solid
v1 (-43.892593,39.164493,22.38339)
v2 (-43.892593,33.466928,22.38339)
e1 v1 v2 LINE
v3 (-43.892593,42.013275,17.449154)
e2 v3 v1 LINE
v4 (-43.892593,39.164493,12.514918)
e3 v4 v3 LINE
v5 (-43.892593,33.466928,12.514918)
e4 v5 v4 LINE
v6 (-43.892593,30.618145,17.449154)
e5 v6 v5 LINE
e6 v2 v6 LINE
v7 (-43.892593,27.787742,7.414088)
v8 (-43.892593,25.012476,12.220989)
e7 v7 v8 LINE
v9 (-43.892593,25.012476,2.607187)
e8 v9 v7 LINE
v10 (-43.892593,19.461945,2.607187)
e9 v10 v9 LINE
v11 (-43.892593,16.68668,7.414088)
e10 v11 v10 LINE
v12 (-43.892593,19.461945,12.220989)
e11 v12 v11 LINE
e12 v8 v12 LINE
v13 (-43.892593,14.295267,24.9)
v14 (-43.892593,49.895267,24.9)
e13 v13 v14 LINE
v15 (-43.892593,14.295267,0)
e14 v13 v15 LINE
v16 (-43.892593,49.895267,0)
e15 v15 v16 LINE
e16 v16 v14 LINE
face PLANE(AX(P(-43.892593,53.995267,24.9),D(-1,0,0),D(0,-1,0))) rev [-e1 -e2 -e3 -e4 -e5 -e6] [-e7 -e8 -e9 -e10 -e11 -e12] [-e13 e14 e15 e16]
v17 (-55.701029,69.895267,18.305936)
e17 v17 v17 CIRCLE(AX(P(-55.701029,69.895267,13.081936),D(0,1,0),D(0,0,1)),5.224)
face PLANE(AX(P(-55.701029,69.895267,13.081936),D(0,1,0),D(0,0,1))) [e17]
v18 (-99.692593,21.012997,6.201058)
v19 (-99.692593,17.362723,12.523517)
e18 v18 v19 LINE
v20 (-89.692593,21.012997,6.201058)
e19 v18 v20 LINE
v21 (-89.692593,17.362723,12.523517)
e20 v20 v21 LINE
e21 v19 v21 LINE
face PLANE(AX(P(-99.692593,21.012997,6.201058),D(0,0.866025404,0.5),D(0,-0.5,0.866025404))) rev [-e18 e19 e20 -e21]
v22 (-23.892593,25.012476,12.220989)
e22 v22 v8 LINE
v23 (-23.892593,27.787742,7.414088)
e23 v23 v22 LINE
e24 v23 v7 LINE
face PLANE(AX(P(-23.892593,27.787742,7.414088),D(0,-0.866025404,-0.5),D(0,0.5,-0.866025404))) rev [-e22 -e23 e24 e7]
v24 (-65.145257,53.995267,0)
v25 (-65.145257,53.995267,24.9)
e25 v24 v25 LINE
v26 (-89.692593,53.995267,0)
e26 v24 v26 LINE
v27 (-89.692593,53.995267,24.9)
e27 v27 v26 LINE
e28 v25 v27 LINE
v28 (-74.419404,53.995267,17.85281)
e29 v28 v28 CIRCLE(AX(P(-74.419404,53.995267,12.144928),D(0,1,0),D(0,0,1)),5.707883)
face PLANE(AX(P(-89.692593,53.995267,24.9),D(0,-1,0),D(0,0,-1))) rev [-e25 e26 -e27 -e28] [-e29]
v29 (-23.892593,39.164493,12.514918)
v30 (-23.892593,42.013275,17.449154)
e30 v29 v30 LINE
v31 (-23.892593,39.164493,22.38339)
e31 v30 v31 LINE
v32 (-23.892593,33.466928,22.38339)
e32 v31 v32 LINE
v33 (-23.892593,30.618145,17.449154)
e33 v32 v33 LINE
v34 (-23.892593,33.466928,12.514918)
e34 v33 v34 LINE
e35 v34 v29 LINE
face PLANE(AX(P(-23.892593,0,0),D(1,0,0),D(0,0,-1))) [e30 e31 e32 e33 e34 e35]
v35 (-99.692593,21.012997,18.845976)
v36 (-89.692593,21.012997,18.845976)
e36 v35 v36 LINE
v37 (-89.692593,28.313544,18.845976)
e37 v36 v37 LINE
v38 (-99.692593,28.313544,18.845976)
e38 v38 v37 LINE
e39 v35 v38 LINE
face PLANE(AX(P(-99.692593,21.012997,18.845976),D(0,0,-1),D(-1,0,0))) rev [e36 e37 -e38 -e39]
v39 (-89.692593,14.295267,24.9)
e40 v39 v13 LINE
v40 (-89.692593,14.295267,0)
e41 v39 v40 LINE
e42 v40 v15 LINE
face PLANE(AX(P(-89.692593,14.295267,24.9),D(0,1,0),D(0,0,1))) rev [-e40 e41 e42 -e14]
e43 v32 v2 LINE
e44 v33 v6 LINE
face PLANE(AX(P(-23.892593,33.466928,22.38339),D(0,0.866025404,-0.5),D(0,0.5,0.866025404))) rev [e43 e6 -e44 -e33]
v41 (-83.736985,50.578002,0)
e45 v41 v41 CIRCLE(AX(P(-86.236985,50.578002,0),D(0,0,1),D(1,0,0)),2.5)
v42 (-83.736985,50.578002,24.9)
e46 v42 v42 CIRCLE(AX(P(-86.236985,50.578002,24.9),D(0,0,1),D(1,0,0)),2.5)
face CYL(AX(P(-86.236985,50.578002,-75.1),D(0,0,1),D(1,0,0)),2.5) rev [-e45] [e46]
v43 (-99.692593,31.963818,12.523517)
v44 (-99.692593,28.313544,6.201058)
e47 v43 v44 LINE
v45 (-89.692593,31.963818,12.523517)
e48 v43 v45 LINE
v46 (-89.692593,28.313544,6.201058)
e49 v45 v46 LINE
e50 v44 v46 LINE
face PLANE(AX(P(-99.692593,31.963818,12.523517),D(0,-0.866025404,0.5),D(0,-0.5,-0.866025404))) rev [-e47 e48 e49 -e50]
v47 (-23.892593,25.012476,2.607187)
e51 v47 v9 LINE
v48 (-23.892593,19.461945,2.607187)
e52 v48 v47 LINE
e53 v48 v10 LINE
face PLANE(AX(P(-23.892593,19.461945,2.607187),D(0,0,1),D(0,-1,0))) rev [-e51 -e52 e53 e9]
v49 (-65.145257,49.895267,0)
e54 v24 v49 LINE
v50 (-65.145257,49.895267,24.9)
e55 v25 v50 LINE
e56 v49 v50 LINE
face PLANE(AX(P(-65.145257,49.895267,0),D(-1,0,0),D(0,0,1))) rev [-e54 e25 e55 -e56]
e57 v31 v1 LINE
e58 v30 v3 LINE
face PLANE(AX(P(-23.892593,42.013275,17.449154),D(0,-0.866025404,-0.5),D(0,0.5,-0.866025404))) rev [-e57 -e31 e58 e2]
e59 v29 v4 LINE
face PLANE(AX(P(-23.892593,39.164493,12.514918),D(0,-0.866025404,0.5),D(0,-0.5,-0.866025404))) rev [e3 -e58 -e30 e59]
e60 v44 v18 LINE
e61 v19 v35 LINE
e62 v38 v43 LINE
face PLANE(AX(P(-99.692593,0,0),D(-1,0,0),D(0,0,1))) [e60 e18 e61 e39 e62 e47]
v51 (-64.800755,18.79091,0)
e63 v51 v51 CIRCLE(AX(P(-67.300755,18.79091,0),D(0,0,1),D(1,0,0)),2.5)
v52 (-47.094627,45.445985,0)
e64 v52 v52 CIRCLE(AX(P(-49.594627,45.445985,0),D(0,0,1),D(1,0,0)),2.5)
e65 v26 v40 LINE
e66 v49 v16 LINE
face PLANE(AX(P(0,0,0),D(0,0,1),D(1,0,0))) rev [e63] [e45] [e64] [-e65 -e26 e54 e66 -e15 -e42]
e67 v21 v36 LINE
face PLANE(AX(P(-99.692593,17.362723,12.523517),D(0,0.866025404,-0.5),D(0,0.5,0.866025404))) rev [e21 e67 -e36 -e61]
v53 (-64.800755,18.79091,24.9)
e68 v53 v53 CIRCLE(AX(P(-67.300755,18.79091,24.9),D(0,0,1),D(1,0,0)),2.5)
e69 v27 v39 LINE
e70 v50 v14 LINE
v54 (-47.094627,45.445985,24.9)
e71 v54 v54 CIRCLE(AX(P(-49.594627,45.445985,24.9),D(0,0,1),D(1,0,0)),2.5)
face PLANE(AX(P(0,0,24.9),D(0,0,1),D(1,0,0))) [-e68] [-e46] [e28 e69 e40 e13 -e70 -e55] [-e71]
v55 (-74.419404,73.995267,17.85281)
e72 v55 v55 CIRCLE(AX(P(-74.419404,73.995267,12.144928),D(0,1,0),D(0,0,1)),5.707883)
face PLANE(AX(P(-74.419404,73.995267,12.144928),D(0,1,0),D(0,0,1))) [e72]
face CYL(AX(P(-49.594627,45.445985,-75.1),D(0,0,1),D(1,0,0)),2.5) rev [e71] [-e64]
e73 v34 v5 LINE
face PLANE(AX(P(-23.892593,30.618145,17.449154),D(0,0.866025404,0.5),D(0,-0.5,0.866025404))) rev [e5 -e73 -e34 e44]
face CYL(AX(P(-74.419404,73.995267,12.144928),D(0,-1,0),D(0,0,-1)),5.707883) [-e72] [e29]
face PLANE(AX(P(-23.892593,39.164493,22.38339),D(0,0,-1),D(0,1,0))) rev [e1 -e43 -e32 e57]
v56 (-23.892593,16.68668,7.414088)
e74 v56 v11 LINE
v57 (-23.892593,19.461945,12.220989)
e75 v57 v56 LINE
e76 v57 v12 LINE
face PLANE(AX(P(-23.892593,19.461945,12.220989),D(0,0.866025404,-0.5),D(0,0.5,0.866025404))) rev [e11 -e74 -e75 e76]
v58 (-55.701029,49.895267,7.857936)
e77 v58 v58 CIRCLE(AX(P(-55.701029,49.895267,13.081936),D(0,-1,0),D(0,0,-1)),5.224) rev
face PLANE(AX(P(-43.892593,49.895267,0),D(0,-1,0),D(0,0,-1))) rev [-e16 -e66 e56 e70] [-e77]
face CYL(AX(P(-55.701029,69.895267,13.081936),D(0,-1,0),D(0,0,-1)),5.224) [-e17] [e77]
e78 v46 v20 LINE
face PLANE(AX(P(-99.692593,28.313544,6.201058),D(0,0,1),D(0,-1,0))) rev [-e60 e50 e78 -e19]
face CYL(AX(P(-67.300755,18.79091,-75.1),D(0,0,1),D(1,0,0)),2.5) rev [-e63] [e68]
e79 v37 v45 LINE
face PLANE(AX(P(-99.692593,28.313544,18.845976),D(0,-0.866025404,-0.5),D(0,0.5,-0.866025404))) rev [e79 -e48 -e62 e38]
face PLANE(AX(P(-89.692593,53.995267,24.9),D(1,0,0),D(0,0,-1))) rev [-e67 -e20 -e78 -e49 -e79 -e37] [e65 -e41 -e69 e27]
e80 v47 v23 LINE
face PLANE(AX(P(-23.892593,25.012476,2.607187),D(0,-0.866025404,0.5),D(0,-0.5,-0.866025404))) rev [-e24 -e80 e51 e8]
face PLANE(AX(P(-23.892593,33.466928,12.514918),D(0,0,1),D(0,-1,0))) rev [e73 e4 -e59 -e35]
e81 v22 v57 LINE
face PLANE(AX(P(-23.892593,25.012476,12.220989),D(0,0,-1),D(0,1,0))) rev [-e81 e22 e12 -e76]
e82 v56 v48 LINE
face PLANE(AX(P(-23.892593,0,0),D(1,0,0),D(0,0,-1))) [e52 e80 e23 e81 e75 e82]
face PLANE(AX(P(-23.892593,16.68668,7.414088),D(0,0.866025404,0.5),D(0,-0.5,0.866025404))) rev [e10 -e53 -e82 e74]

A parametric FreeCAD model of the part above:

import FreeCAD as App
import Part
import Sketcher
Q = App.Units.Quantity

doc = App.newDocument("Part")
body = doc.addObject("PartDesign::Body", "Body")

# Sketch on XY plane
sketch1 = body.newObject("Sketcher::SketchObject", "Sketch")
sketch1.AttachmentSupport = (doc.getObject("XY_Plane"), [""])
sketch1.MapMode = "FlatFace"
sketch1.addGeometry(Part.LineSegment(App.Vector(-89.692593, 53.995267, 0), App.Vector(-89.692593, 14.295267, 0)), False)
sketch1.addGeometry(Part.LineSegment(App.Vector(-89.692593, 14.295267, 0), App.Vector(-43.892593, 14.295267, 0)), False)
sketch1.addGeometry(Part.LineSegment(App.Vector(-43.892593, 14.295267, 0), App.Vector(-43.892593, 53.995267, 0)), False)
sketch1.addGeometry(Part.LineSegment(App.Vector(-43.892593, 53.995267, 0), App.Vector(-89.692593, 53.995267, 0)), False)
sketch1.addConstraint(Sketcher.Constraint("Coincident", 0, 2, 1, 1))
sketch1.addConstraint(Sketcher.Constraint("Coincident", 1, 2, 2, 1))
sketch1.addConstraint(Sketcher.Constraint("Coincident", 2, 2, 3, 1))
sketch1.addConstraint(Sketcher.Constraint("Coincident", 3, 2, 0, 1))
sketch1.addConstraint(Sketcher.Constraint("Vertical", 0))
sketch1.addConstraint(Sketcher.Constraint("Horizontal", 1))
sketch1.addConstraint(Sketcher.Constraint("Vertical", 2))
sketch1.addConstraint(Sketcher.Constraint("Horizontal", 3))
sketch1.addConstraint(Sketcher.Constraint("DistanceX", 1, 1, 1, 2, Q("45.8 mm")))
sketch1.addConstraint(Sketcher.Constraint("DistanceY", 0, 2, 0, 1, Q("39.7 mm")))
sketch1.addConstraint(Sketcher.Constraint("DistanceX", 0, 2, -1, 1, Q("89.692593 mm")))
sketch1.addConstraint(Sketcher.Constraint("DistanceY", -1, 1, 0, 2, Q("14.295267 mm")))
pad1 = body.newObject("PartDesign::Pad", "Pad")
pad1.Profile = sketch1
pad1.Length = 24.9

# Sketch on XY plane
sketch2 = body.newObject("Sketcher::SketchObject", "Sketch001")
sketch2.AttachmentSupport = (doc.getObject("XY_Plane"), [""])
sketch2.MapMode = "FlatFace"
sketch2.AttachmentOffset = App.Placement(App.Vector(0, 0, 24.9), App.Rotation())
sketch2.addGeometry(Part.LineSegment(App.Vector(-65.145257, 53.995267, 0), App.Vector(-65.145257, 49.895267, 0)), False)
sketch2.addGeometry(Part.LineSegment(App.Vector(-65.145257, 49.895267, 0), App.Vector(-43.892593, 49.895267, 0)), False)
sketch2.addGeometry(Part.LineSegment(App.Vector(-43.892593, 49.895267, 0), App.Vector(-43.892593, 53.995267, 0)), False)
sketch2.addGeometry(Part.LineSegment(App.Vector(-43.892593, 53.995267, 0), App.Vector(-65.145257, 53.995267, 0)), False)
sketch2.addConstraint(Sketcher.Constraint("Coincident", 0, 2, 1, 1))
sketch2.addConstraint(Sketcher.Constraint("Coincident", 1, 2, 2, 1))
sketch2.addConstraint(Sketcher.Constraint("Coincident", 2, 2, 3, 1))
sketch2.addConstraint(Sketcher.Constraint("Coincident", 3, 2, 0, 1))
sketch2.addConstraint(Sketcher.Constraint("Vertical", 0))
sketch2.addConstraint(Sketcher.Constraint("Horizontal", 1))
sketch2.addConstraint(Sketcher.Constraint("Vertical", 2))
sketch2.addConstraint(Sketcher.Constraint("Horizontal", 3))
sketch2.addConstraint(Sketcher.Constraint("DistanceY", 0, 2, 0, 1, Q("4.1 mm")))
sketch2.addConstraint(Sketcher.Constraint("DistanceX", 1, 1, 1, 2, Q("21.252664 mm")))
sketch2.addConstraint(Sketcher.Constraint("DistanceX", 0, 2, -1, 1, Q("65.145257 mm")))
sketch2.addConstraint(Sketcher.Constraint("DistanceY", -1, 1, 0, 2, Q("49.895267 mm")))
pocket1 = body.newObject("PartDesign::Pocket", "Pocket")
pocket1.Profile = sketch2
pocket1.Length = 24.9

# Sketch on XZ plane
sketch3 = body.newObject("Sketcher::SketchObject", "Sketch002")
sketch3.AttachmentSupport = (doc.getObject("XZ_Plane"), [""])
sketch3.MapMode = "FlatFace"
sketch3.AttachmentOffset = App.Placement(App.Vector(0, 0, -53.995267), App.Rotation())
sketch3.addGeometry(Part.Circle(App.Vector(-74.419404, 12.144928, 0), App.Vector(0, 0, 1), 5.707883), False)
sketch3.addConstraint(Sketcher.Constraint("Diameter", 0, Q("11.415765 mm")))
sketch3.addConstraint(Sketcher.Constraint("DistanceX", 0, 3, -1, 1, Q("74.419404 mm")))
sketch3.addConstraint(Sketcher.Constraint("DistanceY", -1, 1, 0, 3, Q("12.144928 mm")))
pad2 = body.newObject("PartDesign::Pad", "Pad001")
pad2.Profile = sketch3
pad2.Length = 20
pad2.Reversed = True

# Sketch on XZ plane
sketch4 = body.newObject("Sketcher::SketchObject", "Sketch003")
sketch4.AttachmentSupport = (doc.getObject("XZ_Plane"), [""])
sketch4.MapMode = "FlatFace"
sketch4.AttachmentOffset = App.Placement(App.Vector(0, 0, -49.895267), App.Rotation())
sketch4.addGeometry(Part.Circle(App.Vector(-55.701029, 13.081936, 0), App.Vector(0, 0, 1), 5.224), False)
sketch4.addConstraint(Sketcher.Constraint("Diameter", 0, Q("10.447999 mm")))
sketch4.addConstraint(Sketcher.Constraint("DistanceX", 0, 3, -1, 1, Q("55.701029 mm")))
sketch4.addConstraint(Sketcher.Constraint("DistanceY", -1, 1, 0, 3, Q("13.081936 mm")))
pad3 = body.newObject("PartDesign::Pad", "Pad002")
pad3.Profile = sketch4
pad3.Length = 20
pad3.Reversed = True

# Sketch on YZ plane
sketch5 = body.newObject("Sketcher::SketchObject", "Sketch004")
sketch5.AttachmentSupport = (doc.getObject("YZ_Plane"), [""])
sketch5.MapMode = "FlatFace"
sketch5.AttachmentOffset = App.Placement(App.Vector(0, 0, -89.692593), App.Rotation())
sketch5.addGeometry(Part.LineSegment(App.Vector(21.012997, 18.845976, 0), App.Vector(28.313544, 18.845976, 0)), False)
sketch5.addGeometry(Part.LineSegment(App.Vector(28.313544, 18.845976, 0), App.Vector(31.963818, 12.523517, 0)), False)
sketch5.addGeometry(Part.LineSegment(App.Vector(31.963818, 12.523517, 0), App.Vector(28.313544, 6.201058, 0)), False)
sketch5.addGeometry(Part.LineSegment(App.Vector(28.313544, 6.201058, 0), App.Vector(21.012997, 6.201058, 0)), False)
sketch5.addGeometry(Part.LineSegment(App.Vector(21.012997, 6.201058, 0), App.Vector(17.362723, 12.523517, 0)), False)
sketch5.addGeometry(Part.LineSegment(App.Vector(17.362723, 12.523517, 0), App.Vector(21.012997, 18.845976, 0)), False)
sketch5.addConstraint(Sketcher.Constraint("Coincident", 0, 2, 1, 1))
sketch5.addConstraint(Sketcher.Constraint("Coincident", 1, 2, 2, 1))
sketch5.addConstraint(Sketcher.Constraint("Coincident", 2, 2, 3, 1))
sketch5.addConstraint(Sketcher.Constraint("Coincident", 3, 2, 4, 1))
sketch5.addConstraint(Sketcher.Constraint("Coincident", 4, 2, 5, 1))
sketch5.addConstraint(Sketcher.Constraint("Coincident", 5, 2, 0, 1))
sketch5.addConstraint(Sketcher.Constraint("Horizontal", 0))
sketch5.addConstraint(Sketcher.Constraint("Horizontal", 3))
sketch5.addConstraint(Sketcher.Constraint("Parallel", 1, 4))
sketch5.addConstraint(Sketcher.Constraint("Parallel", 2, 5))
sketch5.addConstraint(Sketcher.Constraint("Horizontal", 1, 2, 4, 2))
sketch5.addConstraint(Sketcher.Constraint("Vertical", 0, 2, 2, 2))
sketch5.addConstraint(Sketcher.Constraint("Vertical", 3, 2, 5, 2))
sketch5.addConstraint(Sketcher.Constraint("Angle", 1, Q("-60 deg")))
sketch5.addConstraint(Sketcher.Constraint("DistanceX", 0, 1, 0, 2, Q("7.300547 mm")))
sketch5.addConstraint(Sketcher.Constraint("DistanceY", 1, 2, 0, 2, Q("6.322459 mm")))
sketch5.addConstraint(Sketcher.Constraint("DistanceX", -1, 1, 0, 2, Q("28.313544 mm")))
sketch5.addConstraint(Sketcher.Constraint("DistanceY", -1, 1, 0, 2, Q("18.845976 mm")))
pad4 = body.newObject("PartDesign::Pad", "Pad003")
pad4.Profile = sketch5
pad4.Length = 10
pad4.Reversed = True

# Sketch on YZ plane
sketch6 = body.newObject("Sketcher::SketchObject", "Sketch005")
sketch6.AttachmentSupport = (doc.getObject("YZ_Plane"), [""])
sketch6.MapMode = "FlatFace"
sketch6.AttachmentOffset = App.Placement(App.Vector(0, 0, -43.892593), App.Rotation())
sketch6.addGeometry(Part.LineSegment(App.Vector(30.618145, 17.449154, 0), App.Vector(33.466928, 12.514918, 0)), False)
sketch6.addGeometry(Part.LineSegment(App.Vector(33.466928, 12.514918, 0), App.Vector(39.164493, 12.514918, 0)), False)
sketch6.addGeometry(Part.LineSegment(App.Vector(39.164493, 12.514918, 0), App.Vector(42.013275, 17.449154, 0)), False)
sketch6.addGeometry(Part.LineSegment(App.Vector(42.013275, 17.449154, 0), App.Vector(39.164493, 22.38339, 0)), False)
sketch6.addGeometry(Part.LineSegment(App.Vector(39.164493, 22.38339, 0), App.Vector(33.466928, 22.38339, 0)), False)
sketch6.addGeometry(Part.LineSegment(App.Vector(33.466928, 22.38339, 0), App.Vector(30.618145, 17.449154, 0)), False)
sketch6.addGeometry(Part.LineSegment(App.Vector(16.68668, 7.414088, 0), App.Vector(19.461945, 2.607187, 0)), False)
sketch6.addGeometry(Part.LineSegment(App.Vector(19.461945, 2.607187, 0), App.Vector(25.012476, 2.607187, 0)), False)
sketch6.addGeometry(Part.LineSegment(App.Vector(25.012476, 2.607187, 0), App.Vector(27.787742, 7.414088, 0)), False)
sketch6.addGeometry(Part.LineSegment(App.Vector(27.787742, 7.414088, 0), App.Vector(25.012476, 12.220989, 0)), False)
sketch6.addGeometry(Part.LineSegment(App.Vector(25.012476, 12.220989, 0), App.Vector(19.461945, 12.220989, 0)), False)
sketch6.addGeometry(Part.LineSegment(App.Vector(19.461945, 12.220989, 0), App.Vector(16.68668, 7.414088, 0)), False)
sketch6.addConstraint(Sketcher.Constraint("Coincident", 0, 2, 1, 1))
sketch6.addConstraint(Sketcher.Constraint("Coincident", 1, 2, 2, 1))
sketch6.addConstraint(Sketcher.Constraint("Coincident", 2, 2, 3, 1))
sketch6.addConstraint(Sketcher.Constraint("Coincident", 3, 2, 4, 1))
sketch6.addConstraint(Sketcher.Constraint("Coincident", 4, 2, 5, 1))
sketch6.addConstraint(Sketcher.Constraint("Coincident", 5, 2, 0, 1))
sketch6.addConstraint(Sketcher.Constraint("Coincident", 6, 2, 7, 1))
sketch6.addConstraint(Sketcher.Constraint("Coincident", 7, 2, 8, 1))
sketch6.addConstraint(Sketcher.Constraint("Coincident", 8, 2, 9, 1))
sketch6.addConstraint(Sketcher.Constraint("Coincident", 9, 2, 10, 1))
sketch6.addConstraint(Sketcher.Constraint("Coincident", 10, 2, 11, 1))
sketch6.addConstraint(Sketcher.Constraint("Coincident", 11, 2, 6, 1))
sketch6.addConstraint(Sketcher.Constraint("Horizontal", 1))
sketch6.addConstraint(Sketcher.Constraint("Horizontal", 4))
sketch6.addConstraint(Sketcher.Constraint("Horizontal", 7))
sketch6.addConstraint(Sketcher.Constraint("Horizontal", 10))
sketch6.addConstraint(Sketcher.Constraint("Parallel", 0, 3))
sketch6.addConstraint(Sketcher.Constraint("Parallel", 2, 5))
sketch6.addConstraint(Sketcher.Constraint("Parallel", 3, 6))
sketch6.addConstraint(Sketcher.Constraint("Parallel", 5, 8))
sketch6.addConstraint(Sketcher.Constraint("Parallel", 6, 9))
sketch6.addConstraint(Sketcher.Constraint("Parallel", 8, 11))
sketch6.addConstraint(Sketcher.Constraint("Horizontal", 2, 2, 5, 2))
sketch6.addConstraint(Sketcher.Constraint("Horizontal", 8, 2, 11, 2))
sketch6.addConstraint(Sketcher.Constraint("Vertical", 1, 2, 3, 2))
sketch6.addConstraint(Sketcher.Constraint("Vertical", 0, 2, 4, 2))
sketch6.addConstraint(Sketcher.Constraint("Vertical", 7, 2, 9, 2))
sketch6.addConstraint(Sketcher.Constraint("Angle", 0, Q("-60 deg")))
sketch6.addConstraint(Sketcher.Constraint("DistanceX", 7, 1, 7, 2, Q("5.550531 mm")))
sketch6.addConstraint(Sketcher.Constraint("DistanceX", 6, 2, 5, 2, Q("11.1562 mm")))
sketch6.addConstraint(Sketcher.Constraint("DistanceY", 7, 2, 8, 2, Q("4.806901 mm")))
sketch6.addConstraint(Sketcher.Constraint("DistanceX", 1, 1, 1, 2, Q("5.697565 mm")))
sketch6.addConstraint(Sketcher.Constraint("DistanceY", -1, 1, 3, 2, Q("22.38339 mm")))
sketch6.addConstraint(Sketcher.Constraint("DistanceX", -1, 1, 8, 2, Q("27.787742 mm")))
sketch6.addConstraint(Sketcher.Constraint("DistanceY", -1, 1, 9, 2, Q("12.220989 mm")))
sketch6.addConstraint(Sketcher.Constraint("DistanceX", 5, 2, 2, 2, Q("11.39513 mm")))
pad5 = body.newObject("PartDesign::Pad", "Pad004")
pad5.Profile = sketch6
pad5.Length = 20

# Sketch on XY plane
sketch7 = body.newObject("Sketcher::SketchObject", "Sketch006")
sketch7.AttachmentSupport = (doc.getObject("XY_Plane"), [""])
sketch7.MapMode = "FlatFace"
sketch7.AttachmentOffset = App.Placement(App.Vector(0, 0, 24.9), App.Rotation())
sketch7.addGeometry(Part.Circle(App.Vector(-67.300755, 18.79091, 0), App.Vector(0, 0, 1), 2.5), False)
sketch7.addGeometry(Part.Circle(App.Vector(-86.236985, 50.578002, 0), App.Vector(0, 0, 1), 2.5), False)
sketch7.addGeometry(Part.Circle(App.Vector(-49.594627, 45.445985, 0), App.Vector(0, 0, 1), 2.5), False)
sketch7.addConstraint(Sketcher.Constraint("Equal", 0, 1))
sketch7.addConstraint(Sketcher.Constraint("Equal", 1, 2))
sketch7.addConstraint(Sketcher.Constraint("Diameter", 0, Q("5 mm")))
sketch7.addConstraint(Sketcher.Constraint("DistanceY", -1, 1, 0, 3, Q("18.79091 mm")))
sketch7.addConstraint(Sketcher.Constraint("DistanceX", 1, 3, 0, 3, Q("18.936229 mm")))
sketch7.addConstraint(Sketcher.Constraint("DistanceY", 0, 3, 1, 3, Q("31.787092 mm")))
sketch7.addConstraint(Sketcher.Constraint("DistanceX", 0, 3, 2, 3, Q("17.706129 mm")))
sketch7.addConstraint(Sketcher.Constraint("DistanceX", 0, 3, -1, 1, Q("67.300755 mm")))
sketch7.addConstraint(Sketcher.Constraint("DistanceY", -1, 1, 2, 3, Q("45.445985 mm")))
pocket2 = body.newObject("PartDesign::Pocket", "Pocket001")
pocket2.Profile = sketch7
pocket2.Length = 100

doc.recompute()
